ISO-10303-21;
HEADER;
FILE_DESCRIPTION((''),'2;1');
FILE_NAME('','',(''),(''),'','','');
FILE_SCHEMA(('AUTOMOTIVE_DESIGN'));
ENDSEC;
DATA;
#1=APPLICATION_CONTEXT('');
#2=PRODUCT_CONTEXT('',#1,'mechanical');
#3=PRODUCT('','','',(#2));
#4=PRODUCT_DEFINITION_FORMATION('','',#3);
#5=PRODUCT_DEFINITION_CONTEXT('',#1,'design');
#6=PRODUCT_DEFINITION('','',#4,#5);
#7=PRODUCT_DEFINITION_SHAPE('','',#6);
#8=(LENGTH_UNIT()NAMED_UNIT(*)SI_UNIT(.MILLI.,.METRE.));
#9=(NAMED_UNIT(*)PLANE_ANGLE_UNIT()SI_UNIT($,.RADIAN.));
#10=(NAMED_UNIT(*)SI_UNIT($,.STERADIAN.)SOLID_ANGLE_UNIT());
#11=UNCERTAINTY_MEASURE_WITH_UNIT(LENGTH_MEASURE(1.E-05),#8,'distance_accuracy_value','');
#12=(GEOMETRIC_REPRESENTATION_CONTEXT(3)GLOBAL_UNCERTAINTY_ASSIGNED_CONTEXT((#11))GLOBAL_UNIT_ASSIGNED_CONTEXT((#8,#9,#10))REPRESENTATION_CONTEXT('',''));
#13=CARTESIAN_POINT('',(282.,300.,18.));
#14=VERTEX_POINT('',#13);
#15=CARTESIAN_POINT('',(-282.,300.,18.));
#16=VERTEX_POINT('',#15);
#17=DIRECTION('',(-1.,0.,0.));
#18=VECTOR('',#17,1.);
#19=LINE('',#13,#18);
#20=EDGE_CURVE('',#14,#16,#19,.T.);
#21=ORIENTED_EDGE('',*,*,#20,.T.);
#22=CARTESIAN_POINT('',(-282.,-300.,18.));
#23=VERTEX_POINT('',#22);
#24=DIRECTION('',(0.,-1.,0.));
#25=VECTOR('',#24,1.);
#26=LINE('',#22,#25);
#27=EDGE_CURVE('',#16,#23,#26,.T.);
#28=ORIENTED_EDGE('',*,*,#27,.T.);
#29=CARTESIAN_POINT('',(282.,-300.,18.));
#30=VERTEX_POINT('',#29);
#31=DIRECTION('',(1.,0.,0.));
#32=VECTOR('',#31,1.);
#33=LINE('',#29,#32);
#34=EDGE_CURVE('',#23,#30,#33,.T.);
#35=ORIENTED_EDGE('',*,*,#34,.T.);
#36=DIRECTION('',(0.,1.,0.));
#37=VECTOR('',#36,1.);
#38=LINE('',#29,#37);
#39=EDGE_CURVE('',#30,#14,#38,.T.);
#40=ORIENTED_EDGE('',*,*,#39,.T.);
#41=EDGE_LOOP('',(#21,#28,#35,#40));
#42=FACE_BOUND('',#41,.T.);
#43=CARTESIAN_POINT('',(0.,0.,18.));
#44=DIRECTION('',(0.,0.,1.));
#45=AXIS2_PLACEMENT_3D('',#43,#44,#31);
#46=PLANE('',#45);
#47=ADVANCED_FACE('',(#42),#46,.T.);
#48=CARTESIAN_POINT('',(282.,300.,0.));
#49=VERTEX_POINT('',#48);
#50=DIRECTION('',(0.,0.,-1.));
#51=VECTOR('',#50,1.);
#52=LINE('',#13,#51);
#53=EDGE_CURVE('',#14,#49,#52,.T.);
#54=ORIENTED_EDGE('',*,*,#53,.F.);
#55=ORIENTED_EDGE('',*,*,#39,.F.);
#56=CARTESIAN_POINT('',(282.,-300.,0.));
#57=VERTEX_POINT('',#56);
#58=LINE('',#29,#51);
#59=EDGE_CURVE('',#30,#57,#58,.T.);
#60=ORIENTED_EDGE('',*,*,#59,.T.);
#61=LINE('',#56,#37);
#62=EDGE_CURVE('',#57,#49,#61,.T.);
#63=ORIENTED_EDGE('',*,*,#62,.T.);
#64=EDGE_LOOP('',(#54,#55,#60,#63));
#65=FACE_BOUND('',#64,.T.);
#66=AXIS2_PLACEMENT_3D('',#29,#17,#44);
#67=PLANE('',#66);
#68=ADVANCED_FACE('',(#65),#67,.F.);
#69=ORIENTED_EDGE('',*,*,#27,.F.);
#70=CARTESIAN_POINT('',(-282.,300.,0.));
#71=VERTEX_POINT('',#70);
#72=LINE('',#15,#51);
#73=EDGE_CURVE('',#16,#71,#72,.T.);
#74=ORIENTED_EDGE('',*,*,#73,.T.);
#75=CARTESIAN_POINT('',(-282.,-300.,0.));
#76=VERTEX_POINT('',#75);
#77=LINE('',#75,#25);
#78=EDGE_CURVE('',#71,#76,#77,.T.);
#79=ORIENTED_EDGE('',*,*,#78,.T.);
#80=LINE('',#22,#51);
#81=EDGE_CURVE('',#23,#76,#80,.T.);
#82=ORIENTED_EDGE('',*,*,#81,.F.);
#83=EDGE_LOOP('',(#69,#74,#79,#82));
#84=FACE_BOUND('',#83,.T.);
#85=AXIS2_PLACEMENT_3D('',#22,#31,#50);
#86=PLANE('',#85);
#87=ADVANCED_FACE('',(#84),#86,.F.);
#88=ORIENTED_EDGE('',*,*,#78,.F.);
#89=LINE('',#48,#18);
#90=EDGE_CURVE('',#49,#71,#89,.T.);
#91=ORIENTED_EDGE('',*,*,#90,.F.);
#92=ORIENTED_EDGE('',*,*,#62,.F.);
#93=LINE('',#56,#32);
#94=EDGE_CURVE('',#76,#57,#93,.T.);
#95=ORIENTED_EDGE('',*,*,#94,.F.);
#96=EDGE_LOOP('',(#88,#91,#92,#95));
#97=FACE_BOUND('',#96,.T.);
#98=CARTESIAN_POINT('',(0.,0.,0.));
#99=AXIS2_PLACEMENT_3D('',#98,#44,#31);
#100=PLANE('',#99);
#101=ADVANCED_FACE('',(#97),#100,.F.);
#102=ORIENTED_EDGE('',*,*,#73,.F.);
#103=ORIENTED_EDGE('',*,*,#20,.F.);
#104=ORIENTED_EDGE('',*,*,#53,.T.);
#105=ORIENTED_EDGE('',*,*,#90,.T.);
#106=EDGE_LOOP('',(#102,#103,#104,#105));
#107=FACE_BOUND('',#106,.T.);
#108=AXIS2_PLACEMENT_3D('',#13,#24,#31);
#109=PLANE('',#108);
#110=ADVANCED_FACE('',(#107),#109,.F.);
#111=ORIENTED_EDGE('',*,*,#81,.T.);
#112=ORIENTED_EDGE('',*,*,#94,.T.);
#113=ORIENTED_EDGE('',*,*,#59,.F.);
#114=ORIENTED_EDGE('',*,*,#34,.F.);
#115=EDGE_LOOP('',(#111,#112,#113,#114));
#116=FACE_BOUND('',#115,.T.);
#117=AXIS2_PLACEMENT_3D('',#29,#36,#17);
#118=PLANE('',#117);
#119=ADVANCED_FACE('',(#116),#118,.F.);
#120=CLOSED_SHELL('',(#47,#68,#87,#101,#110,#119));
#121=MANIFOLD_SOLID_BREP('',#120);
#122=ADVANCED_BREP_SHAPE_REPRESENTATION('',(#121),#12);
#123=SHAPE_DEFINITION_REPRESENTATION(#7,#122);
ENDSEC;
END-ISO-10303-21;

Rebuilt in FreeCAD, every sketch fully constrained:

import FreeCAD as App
import Part
import Sketcher

V = App.Vector
Q = App.Units.Quantity


def add_polygon(sketch, points):
    """Adds a closed chain of lines whose ends are joined by coincident constraints."""
    first, n = sketch.GeometryCount, len(points)
    for a, b in zip(points, points[1:] + points[:1]):
        sketch.addGeometry(Part.LineSegment(App.Vector(*a, 0), App.Vector(*b, 0)), False)
    for i in range(n):
        sketch.addConstraint(Sketcher.Constraint("Coincident", first + i, 2, first + (i + 1) % n, 1))

doc = App.newDocument("Part")
body = doc.addObject("PartDesign::Body", "Body")

sketch1 = body.newObject("Sketcher::SketchObject", "Sketch")
sketch1.AttachmentSupport = (doc.getObject("XY_Plane"), [""])
sketch1.MapMode = "FlatFace"
add_polygon(sketch1, [(-282, 300), (-282, -300), (282, -300), (282, 300)])
sketch1.addConstraint([
    Sketcher.Constraint("Vertical", 0),
    Sketcher.Constraint("Horizontal", 1),
    Sketcher.Constraint("Vertical", 2),
    Sketcher.Constraint("Horizontal", 3),
    Sketcher.Constraint("Symmetric", 0, 2, 2, 2, -1, 1),
    Sketcher.Constraint("DistanceX", 1, 1, 1, 2, Q("564 mm")),
    Sketcher.Constraint("DistanceY", 0, 2, 0, 1, Q("600 mm")),
])
pad1 = body.newObject("PartDesign::Pad", "Pad")
pad1.Profile = sketch1
pad1.Length = 18

doc.recompute()
